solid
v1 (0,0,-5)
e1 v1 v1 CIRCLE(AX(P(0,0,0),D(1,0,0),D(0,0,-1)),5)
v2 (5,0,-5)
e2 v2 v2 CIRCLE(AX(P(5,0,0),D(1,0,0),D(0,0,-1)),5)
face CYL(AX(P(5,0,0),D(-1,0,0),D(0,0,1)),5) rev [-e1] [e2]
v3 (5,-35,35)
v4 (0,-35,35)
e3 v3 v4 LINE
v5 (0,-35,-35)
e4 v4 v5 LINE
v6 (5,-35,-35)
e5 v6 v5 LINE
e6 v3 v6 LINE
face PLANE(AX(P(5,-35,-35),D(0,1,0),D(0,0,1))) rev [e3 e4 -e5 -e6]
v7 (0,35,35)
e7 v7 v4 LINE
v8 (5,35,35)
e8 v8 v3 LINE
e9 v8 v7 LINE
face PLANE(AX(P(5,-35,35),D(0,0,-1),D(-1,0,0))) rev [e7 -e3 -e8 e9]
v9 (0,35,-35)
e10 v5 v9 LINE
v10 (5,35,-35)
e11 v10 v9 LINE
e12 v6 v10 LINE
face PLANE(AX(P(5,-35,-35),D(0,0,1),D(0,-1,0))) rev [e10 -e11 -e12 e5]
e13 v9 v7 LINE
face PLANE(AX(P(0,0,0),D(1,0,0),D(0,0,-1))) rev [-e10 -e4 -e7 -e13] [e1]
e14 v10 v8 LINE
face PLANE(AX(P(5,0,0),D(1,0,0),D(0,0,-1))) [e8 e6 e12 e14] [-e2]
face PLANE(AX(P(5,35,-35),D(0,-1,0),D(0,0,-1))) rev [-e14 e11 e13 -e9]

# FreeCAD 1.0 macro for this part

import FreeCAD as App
import Part
import Sketcher

doc = App.newDocument("Part")
body = doc.addObject("PartDesign::Body", "Body")

sketch1 = body.newObject("Sketcher::SketchObject", "Sketch")
sketch1.AttachmentSupport = (doc.getObject("YZ_Plane"), [""])
sketch1.MapMode = "FlatFace"
sketch1.addGeometry([
    Part.LineSegment(App.Vector(35, 35, 0), App.Vector(-35, 35, 0)),
    Part.LineSegment(App.Vector(-35, 35, 0), App.Vector(-35, -35, 0)),
    Part.LineSegment(App.Vector(-35, -35, 0), App.Vector(35, -35, 0)),
    Part.LineSegment(App.Vector(35, -35, 0), App.Vector(35, 35, 0)),
    Part.Circle(App.Vector(0, 0, 0), App.Vector(0, 0, 1), 5),
], False)
sketch1.addConstraint([
    Sketcher.Constraint("Coincident", 0, 2, 1, 1),
    Sketcher.Constraint("Coincident", 1, 2, 2, 1),
    Sketcher.Constraint("Coincident", 2, 2, 3, 1),
    Sketcher.Constraint("Coincident", 3, 2, 0, 1),
    Sketcher.Constraint("Horizontal", 0),
    Sketcher.Constraint("Vertical", 1),
    Sketcher.Constraint("Horizontal", 2),
    Sketcher.Constraint("Vertical", 3),
    Sketcher.Constraint("Coincident", 4, 3, -1, 1),
    Sketcher.Constraint("Symmetric", 0, 2, 2, 2, -1, 1),
    Sketcher.Constraint("Equal", 2, 1),
    Sketcher.Constraint("Diameter", 4, 10.0),
    Sketcher.Constraint("DistanceX", 0, 2, 0, 1, 70.0),
])
pad1 = body.newObject("PartDesign::Pad", "Pad")
pad1.Profile = sketch1
pad1.Length = 5

doc.recompute()
